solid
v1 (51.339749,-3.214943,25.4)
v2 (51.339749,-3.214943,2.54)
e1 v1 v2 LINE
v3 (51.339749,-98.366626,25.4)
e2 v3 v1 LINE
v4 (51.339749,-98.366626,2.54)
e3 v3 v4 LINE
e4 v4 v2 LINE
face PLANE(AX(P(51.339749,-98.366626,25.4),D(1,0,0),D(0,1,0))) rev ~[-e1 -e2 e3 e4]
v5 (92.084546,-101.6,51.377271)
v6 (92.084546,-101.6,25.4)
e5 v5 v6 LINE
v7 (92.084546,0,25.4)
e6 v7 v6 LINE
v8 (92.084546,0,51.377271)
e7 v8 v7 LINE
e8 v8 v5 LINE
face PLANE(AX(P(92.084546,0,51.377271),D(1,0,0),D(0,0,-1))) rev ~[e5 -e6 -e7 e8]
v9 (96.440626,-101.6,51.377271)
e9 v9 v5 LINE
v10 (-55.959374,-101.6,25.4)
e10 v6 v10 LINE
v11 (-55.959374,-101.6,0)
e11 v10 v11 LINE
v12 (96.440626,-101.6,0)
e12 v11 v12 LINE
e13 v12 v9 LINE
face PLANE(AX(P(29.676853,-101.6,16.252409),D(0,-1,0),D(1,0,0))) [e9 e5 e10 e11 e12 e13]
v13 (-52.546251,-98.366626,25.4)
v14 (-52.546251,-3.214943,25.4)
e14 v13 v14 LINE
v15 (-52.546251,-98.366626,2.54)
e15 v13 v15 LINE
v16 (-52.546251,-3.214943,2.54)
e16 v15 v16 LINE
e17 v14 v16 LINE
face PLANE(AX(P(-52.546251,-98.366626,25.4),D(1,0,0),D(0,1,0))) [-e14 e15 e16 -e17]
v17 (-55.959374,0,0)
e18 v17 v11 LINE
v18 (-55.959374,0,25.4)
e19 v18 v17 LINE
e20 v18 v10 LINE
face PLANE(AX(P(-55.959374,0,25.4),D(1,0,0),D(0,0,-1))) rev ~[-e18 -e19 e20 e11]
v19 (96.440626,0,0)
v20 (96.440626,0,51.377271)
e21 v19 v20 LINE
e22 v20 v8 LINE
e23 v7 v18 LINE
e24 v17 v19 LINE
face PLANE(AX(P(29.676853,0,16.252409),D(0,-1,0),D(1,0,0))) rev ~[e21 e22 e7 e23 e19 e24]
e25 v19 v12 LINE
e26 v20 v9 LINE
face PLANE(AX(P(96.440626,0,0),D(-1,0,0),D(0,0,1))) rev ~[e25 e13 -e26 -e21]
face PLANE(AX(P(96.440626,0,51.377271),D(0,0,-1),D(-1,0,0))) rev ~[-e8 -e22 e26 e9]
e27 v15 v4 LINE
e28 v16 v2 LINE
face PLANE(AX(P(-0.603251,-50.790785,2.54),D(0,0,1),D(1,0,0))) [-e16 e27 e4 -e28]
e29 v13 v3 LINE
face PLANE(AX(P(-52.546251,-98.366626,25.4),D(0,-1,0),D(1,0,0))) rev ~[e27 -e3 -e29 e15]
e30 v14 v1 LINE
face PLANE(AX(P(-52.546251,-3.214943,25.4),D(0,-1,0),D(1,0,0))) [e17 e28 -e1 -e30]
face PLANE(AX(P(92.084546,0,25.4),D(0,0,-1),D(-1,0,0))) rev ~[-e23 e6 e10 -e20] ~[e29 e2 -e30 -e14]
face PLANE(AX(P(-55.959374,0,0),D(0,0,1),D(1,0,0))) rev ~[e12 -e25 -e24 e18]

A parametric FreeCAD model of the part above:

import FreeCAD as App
import Part
import Sketcher
Q = App.Units.Quantity

doc = App.newDocument("Part")
body = doc.addObject("PartDesign::Body", "Body")

# Sketch on XZ plane
sketch1 = doc.addObject("Sketcher::SketchObject", "Sketch")
body.addObject(sketch1)
sketch1.AttachmentSupport = (doc.XZ_Plane, [""])
sketch1.MapMode = "FlatFace"
sketch1.addGeometry([
    Part.LineSegment(App.Vector(-56, 25.4, 0), App.Vector(-56, 0, 0)),  # 0
    Part.LineSegment(App.Vector(-56, 0, 0), App.Vector(96.4, 0, 0)),  # 1
    Part.LineSegment(App.Vector(96.4, 0, 0), App.Vector(96.4, 51.4, 0)),  # 2
    Part.LineSegment(App.Vector(96.4, 51.4, 0), App.Vector(92.1, 51.4, 0)),  # 3
    Part.LineSegment(App.Vector(92.1, 51.4, 0), App.Vector(92.1, 25.4, 0)),  # 4
    Part.LineSegment(App.Vector(92.1, 25.4, 0), App.Vector(-56, 25.4, 0)),  # 5
], False)
sketch1.addConstraint([
    Sketcher.Constraint("Coincident", 0, 2, 1, 1),
    Sketcher.Constraint("Coincident", 1, 2, 2, 1),
    Sketcher.Constraint("Coincident", 2, 2, 3, 1),
    Sketcher.Constraint("Coincident", 3, 2, 4, 1),
    Sketcher.Constraint("Coincident", 4, 2, 5, 1),
    Sketcher.Constraint("Coincident", 5, 2, 0, 1),
    Sketcher.Constraint("Vertical", 0),
    Sketcher.Constraint("Horizontal", 1),
    Sketcher.Constraint("Vertical", 2),
    Sketcher.Constraint("Horizontal", 3),
    Sketcher.Constraint("Vertical", 4),
    Sketcher.Constraint("Horizontal", 5),
    Sketcher.Constraint("PointOnObject", 0, 2, -1),
    Sketcher.Constraint("DistanceX", 1, 1, 1, 2, Q("6 in")),
    Sketcher.Constraint("DistanceY", 0, 2, 0, 1, Q("1 in")),
    Sketcher.Constraint("DistanceX", 0, 2, -1, 1, Q("2.203125 in")),
    Sketcher.Constraint("DistanceX", 3, 2, 3, 1, Q("4.35608 mm")),
    Sketcher.Constraint("DistanceY", 2, 1, 2, 2, Q("51.377271 mm")),
])
pad1 = doc.addObject("PartDesign::Pad", "Pad")
body.addObject(pad1)
pad1.Profile = sketch1
pad1.Length = Q("4 in")

# Sketch on XY plane
sketch2 = doc.addObject("Sketcher::SketchObject", "Sketch001")
body.addObject(sketch2)
sketch2.AttachmentSupport = (doc.XY_Plane, [""])
sketch2.MapMode = "FlatFace"
sketch2.AttachmentOffset = App.Placement(App.Vector(0, 0, 1 * 25.4), App.Rotation())
sketch2.addGeometry([
    Part.LineSegment(App.Vector(-53, -3, 0), App.Vector(-53, -98, 0)),
    Part.LineSegment(App.Vector(-53, -98, 0), App.Vector(51, -98, 0)),
    Part.LineSegment(App.Vector(51, -98, 0), App.Vector(51, -3, 0)),
    Part.LineSegment(App.Vector(51, -3, 0), App.Vector(-53, -3, 0)),
], False)
sketch2.addConstraint([
    Sketcher.Constraint("Coincident", 0, 2, 1, 1),
    Sketcher.Constraint("Coincident", 1, 2, 2, 1),
    Sketcher.Constraint("Coincident", 2, 2, 3, 1),
    Sketcher.Constraint("Coincident", 3, 2, 0, 1),
    Sketcher.Constraint("Vertical", 0),
    Sketcher.Constraint("Horizontal", 1),
    Sketcher.Constraint("Vertical", 2),
    Sketcher.Constraint("Horizontal", 3),
    Sketcher.Constraint("DistanceX", 1, 1, 1, 2, Q("4.09 in")),
    Sketcher.Constraint("DistanceY", 0, 2, 0, 1, Q("95.151683 mm")),
    Sketcher.Constraint("DistanceX", 0, 2, -1, 1, Q("52.546251 mm")),
    Sketcher.Constraint("DistanceY", 0, 2, -1, 1, Q("98.366626 mm")),
])
pocket1 = doc.addObject("PartDesign::Pocket", "Pocket")
body.addObject(pocket1)
pocket1.Profile = sketch2
pocket1.Length = Q("0.9 in")

doc.recompute()
